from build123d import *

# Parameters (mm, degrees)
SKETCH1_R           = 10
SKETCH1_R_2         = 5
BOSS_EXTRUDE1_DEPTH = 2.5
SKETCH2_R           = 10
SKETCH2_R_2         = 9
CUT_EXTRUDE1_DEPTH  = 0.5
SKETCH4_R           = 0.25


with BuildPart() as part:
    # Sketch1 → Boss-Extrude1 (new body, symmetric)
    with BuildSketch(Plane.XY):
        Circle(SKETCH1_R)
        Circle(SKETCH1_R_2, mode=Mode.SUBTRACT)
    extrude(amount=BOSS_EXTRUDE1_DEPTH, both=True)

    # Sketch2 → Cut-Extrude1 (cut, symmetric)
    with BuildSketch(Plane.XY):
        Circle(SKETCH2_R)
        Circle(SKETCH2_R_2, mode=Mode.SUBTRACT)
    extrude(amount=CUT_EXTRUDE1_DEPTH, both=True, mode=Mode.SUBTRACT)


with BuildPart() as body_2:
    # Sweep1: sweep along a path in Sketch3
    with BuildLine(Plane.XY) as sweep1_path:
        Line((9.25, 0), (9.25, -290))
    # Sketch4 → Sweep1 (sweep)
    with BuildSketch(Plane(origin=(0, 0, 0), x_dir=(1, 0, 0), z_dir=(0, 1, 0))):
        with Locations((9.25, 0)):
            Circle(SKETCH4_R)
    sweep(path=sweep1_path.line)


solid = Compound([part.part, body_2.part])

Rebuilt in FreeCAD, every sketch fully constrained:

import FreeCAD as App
import Part
import Sketcher

V = App.Vector

doc = App.newDocument("Part")
body = doc.addObject("PartDesign::Body", "Body")

sketch1 = body.newObject("Sketcher::SketchObject", "Sketch")
sketch1.AttachmentSupport = (doc.getObject("XY_Plane"), [""])
sketch1.MapMode = "FlatFace"
sketch1.addGeometry([
    Part.Circle(V(0, 0, 0), V(0, 0, 1), 10),
    Part.Circle(V(0, 0, 0), V(0, 0, 1), 5),
], False)
sketch1.addConstraint([
    Sketcher.Constraint("Coincident", 0, 3, -1, 1),
    Sketcher.Constraint("Coincident", 1, 3, -1, 1),
    Sketcher.Constraint("Diameter", 0, 20.0),
    Sketcher.Constraint("Diameter", 1, 10.0),
])
pad1 = body.newObject("PartDesign::Pad", "Pad")
pad1.Profile = sketch1
pad1.Length = 5
pad1.Midplane = True

sketch2 = body.newObject("Sketcher::SketchObject", "Sketch001")
sketch2.AttachmentSupport = (doc.getObject("XY_Plane"), [""])
sketch2.MapMode = "FlatFace"
sketch2.addGeometry([
    Part.Circle(V(0, 0, 0), V(0, 0, 1), 10),
    Part.Circle(V(0, 0, 0), V(0, 0, 1), 9),
], False)
sketch2.addConstraint([
    Sketcher.Constraint("Coincident", 0, 3, -1, 1),
    Sketcher.Constraint("Coincident", 1, 3, -1, 1),
    Sketcher.Constraint("Diameter", 0, 20.0),
    Sketcher.Constraint("Diameter", 1, 18.0),
])
pocket1 = body.newObject("PartDesign::Pocket", "Pocket")
pocket1.Profile = sketch2
pocket1.Length = 1
pocket1.Midplane = True
body2 = doc.addObject("PartDesign::Body", "Body001")

sketch3 = body2.newObject("Sketcher::SketchObject", "Sketch002")
sketch3.AttachmentSupport = (doc.getObject("XZ_Plane001"), [""])
sketch3.MapMode = "FlatFace"
sketch3.addGeometry(Part.Circle(V(9.25, 0, 0), V(0, 0, 1), 0.25), False)
sketch3.addConstraint([
    Sketcher.Constraint("PointOnObject", 0, 3, -1),
    Sketcher.Constraint("Diameter", 0, 0.5),
    Sketcher.Constraint("DistanceX", -1, 1, 0, 3, 9.25),
])

sketch4 = body2.newObject("Sketcher::SketchObject", "Sketch003")
sketch4.AttachmentSupport = (doc.getObject("XY_Plane001"), [""])
sketch4.MapMode = "FlatFace"
sketch4.addGeometry(Part.LineSegment(V(9, 0, 0), V(9, -290, 0)), False)
sketch4.addConstraint([
    Sketcher.Constraint("Vertical", 0),
    Sketcher.Constraint("PointOnObject", 0, 1, -1),
    Sketcher.Constraint("DistanceY", 0, 2, 0, 1, 290.0),
    Sketcher.Constraint("DistanceX", -1, 1, 0, 1, 9.25),
])
doc.recompute()

additivepipe = body2.newObject("PartDesign::AdditivePipe", "AdditivePipe")
additivepipe.Profile = sketch3
additivepipe.Spine = (sketch4, ["Edge1"])

doc.recompute()
